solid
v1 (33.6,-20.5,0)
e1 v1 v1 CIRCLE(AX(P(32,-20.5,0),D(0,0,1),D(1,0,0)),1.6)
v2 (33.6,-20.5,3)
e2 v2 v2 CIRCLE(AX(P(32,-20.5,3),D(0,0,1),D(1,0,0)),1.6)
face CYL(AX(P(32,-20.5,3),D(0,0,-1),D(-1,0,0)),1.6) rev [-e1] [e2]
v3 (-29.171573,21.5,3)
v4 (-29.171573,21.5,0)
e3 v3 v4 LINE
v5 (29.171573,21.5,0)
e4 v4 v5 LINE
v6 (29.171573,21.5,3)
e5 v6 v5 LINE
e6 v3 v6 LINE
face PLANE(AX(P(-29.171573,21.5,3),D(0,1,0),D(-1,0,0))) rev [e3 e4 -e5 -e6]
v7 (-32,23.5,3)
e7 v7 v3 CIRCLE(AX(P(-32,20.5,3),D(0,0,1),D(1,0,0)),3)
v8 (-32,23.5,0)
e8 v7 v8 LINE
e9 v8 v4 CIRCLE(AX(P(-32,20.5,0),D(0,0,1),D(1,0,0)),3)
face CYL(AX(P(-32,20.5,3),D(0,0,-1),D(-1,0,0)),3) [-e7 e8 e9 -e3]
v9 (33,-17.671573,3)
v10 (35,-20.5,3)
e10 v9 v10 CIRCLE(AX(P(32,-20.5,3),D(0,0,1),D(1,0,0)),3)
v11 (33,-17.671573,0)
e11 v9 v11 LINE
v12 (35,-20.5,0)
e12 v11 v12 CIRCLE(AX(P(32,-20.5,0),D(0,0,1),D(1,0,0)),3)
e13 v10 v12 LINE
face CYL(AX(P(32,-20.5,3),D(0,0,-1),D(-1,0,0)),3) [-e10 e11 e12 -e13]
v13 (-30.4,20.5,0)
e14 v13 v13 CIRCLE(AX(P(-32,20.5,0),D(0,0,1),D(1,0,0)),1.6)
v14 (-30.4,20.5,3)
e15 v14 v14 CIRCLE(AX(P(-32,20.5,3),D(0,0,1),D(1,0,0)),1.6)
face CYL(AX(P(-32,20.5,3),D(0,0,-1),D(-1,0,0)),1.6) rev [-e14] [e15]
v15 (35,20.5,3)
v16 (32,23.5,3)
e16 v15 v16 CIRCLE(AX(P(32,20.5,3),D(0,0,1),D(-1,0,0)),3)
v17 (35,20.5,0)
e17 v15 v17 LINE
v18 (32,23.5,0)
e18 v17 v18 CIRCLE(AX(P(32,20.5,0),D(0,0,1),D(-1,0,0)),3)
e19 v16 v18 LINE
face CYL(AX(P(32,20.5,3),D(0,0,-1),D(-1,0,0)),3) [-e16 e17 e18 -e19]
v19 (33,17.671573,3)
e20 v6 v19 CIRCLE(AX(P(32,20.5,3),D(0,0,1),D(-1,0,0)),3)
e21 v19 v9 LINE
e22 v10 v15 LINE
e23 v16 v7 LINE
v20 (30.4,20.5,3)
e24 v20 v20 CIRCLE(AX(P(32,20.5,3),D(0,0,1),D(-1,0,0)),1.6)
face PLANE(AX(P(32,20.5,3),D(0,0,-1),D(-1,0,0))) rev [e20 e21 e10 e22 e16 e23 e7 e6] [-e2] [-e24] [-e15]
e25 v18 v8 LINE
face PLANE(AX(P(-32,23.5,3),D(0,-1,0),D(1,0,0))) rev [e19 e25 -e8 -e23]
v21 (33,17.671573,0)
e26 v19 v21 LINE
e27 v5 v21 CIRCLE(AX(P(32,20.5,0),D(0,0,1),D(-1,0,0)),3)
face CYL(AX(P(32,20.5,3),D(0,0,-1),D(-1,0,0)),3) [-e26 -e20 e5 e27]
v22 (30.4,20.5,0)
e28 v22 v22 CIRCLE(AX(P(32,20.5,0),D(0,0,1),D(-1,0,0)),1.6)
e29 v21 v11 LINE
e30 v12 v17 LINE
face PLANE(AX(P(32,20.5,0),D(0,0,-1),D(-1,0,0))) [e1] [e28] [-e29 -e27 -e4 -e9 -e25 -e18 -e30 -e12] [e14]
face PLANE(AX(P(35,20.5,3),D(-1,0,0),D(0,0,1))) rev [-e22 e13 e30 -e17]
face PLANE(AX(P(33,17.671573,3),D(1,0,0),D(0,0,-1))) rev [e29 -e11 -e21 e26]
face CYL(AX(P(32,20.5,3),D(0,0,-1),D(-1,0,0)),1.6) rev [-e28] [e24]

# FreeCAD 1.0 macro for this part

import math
import FreeCAD as App
import Part
import Sketcher
from FreeCAD import Vector

doc = App.newDocument("Part")
body = doc.addObject("PartDesign::Body", "Body")

sketch1 = body.newObject("Sketcher::SketchObject", "Sketch")
sketch1.AttachmentSupport = (doc.getObject("XY_Plane"), [""])
sketch1.MapMode = "FlatFace"
sketch1.addGeometry([
    Part.LineSegment(Vector(35, -20.5, 0), Vector(35, 20.5, 0)),
    Part.ArcOfCircle(Part.Circle(Vector(32, 20.5, 0), Vector(0, 0, 1), 3), math.radians(0), math.radians(90)),
    Part.LineSegment(Vector(32, 23.5, 0), Vector(-32, 23.5, 0)),
    Part.ArcOfCircle(Part.Circle(Vector(-32, 20.5, 0), Vector(0, 0, 1), 3), math.radians(90), math.radians(379)),
    Part.LineSegment(Vector(-29.2, 21.5, 0), Vector(29.2, 21.5, 0)),
    Part.ArcOfCircle(Part.Circle(Vector(32, 20.5, 0), Vector(0, 0, 1), 3), math.radians(161), math.radians(289)),
    Part.LineSegment(Vector(33, 17.7, 0), Vector(33, -17.7, 0)),
    Part.ArcOfCircle(Part.Circle(Vector(32, -20.5, 0), Vector(0, 0, 1), 3), math.radians(71), math.radians(360)),
    Part.Circle(Vector(32, -20.5, 0), Vector(0, 0, 1), 1.6),
    Part.Circle(Vector(32, 20.5, 0), Vector(0, 0, 1), 1.6),
    Part.Circle(Vector(-32, 20.5, 0), Vector(0, 0, 1), 1.6),
], False)
sketch1.addConstraint([
    Sketcher.Constraint("Tangent", 0, 2, 1, 1),
    Sketcher.Constraint("Tangent", 1, 2, 2, 1),
    Sketcher.Constraint("Tangent", 2, 2, 3, 1),
    Sketcher.Constraint("Coincident", 3, 2, 4, 1),
    Sketcher.Constraint("Coincident", 4, 2, 5, 1),
    Sketcher.Constraint("Coincident", 5, 2, 6, 1),
    Sketcher.Constraint("Coincident", 6, 2, 7, 1),
    Sketcher.Constraint("Tangent", 7, 2, 0, 1),
    Sketcher.Constraint("Vertical", 0),
    Sketcher.Constraint("Horizontal", 2),
    Sketcher.Constraint("Horizontal", 4),
    Sketcher.Constraint("Vertical", 6),
    Sketcher.Constraint("Coincident", 5, 3, 1, 3),
    Sketcher.Constraint("Coincident", 8, 3, 7, 3),
    Sketcher.Constraint("Coincident", 9, 3, 1, 3),
    Sketcher.Constraint("Coincident", 10, 3, 3, 3),
    Sketcher.Constraint("Equal", 1, 3),
    Sketcher.Constraint("Equal", 3, 5),
    Sketcher.Constraint("Equal", 5, 7),
    Sketcher.Constraint("Equal", 8, 9),
    Sketcher.Constraint("Equal", 9, 10),
    Sketcher.Constraint("Symmetric", 3, 3, 7, 3, -1, 1),
    Sketcher.Constraint("Radius", 1, 3.0),
    Sketcher.Constraint("Diameter", 8, 3.2),
    Sketcher.Constraint("DistanceX", 2, 2, 2, 1, 64.0),
    Sketcher.Constraint("DistanceY", 0, 1, 0, 2, 41.0),
    Sketcher.Constraint("DistanceX", -1, 1, 5, 2, 33.0),
    Sketcher.Constraint("DistanceY", 3, 3, 3, 2, 1.0),
])
pad1 = body.newObject("PartDesign::Pad", "Pad")
pad1.Profile = sketch1
pad1.Length = 3

doc.recompute()
